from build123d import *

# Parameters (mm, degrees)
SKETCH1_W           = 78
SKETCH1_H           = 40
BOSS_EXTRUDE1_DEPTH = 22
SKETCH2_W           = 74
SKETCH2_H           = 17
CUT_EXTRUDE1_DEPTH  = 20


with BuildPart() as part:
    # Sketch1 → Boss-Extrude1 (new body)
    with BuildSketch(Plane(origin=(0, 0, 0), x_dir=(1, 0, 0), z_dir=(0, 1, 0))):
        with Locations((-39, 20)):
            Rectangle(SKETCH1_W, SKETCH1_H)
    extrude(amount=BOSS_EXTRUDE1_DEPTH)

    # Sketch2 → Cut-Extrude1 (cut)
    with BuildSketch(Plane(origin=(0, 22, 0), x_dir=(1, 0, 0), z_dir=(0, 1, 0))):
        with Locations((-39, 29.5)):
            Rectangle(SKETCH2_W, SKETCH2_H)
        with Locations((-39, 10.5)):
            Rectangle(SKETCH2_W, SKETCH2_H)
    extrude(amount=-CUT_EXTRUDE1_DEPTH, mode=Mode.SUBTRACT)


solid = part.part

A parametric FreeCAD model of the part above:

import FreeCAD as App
import Part
import Sketcher

V = App.Vector

doc = App.newDocument("Part")
params = doc.addObject("Spreadsheet::Sheet", "Params")
for row, (alias, value) in enumerate([
    ("sketch1_width", "78 mm"),
    ("sketch1_height", "40 mm"),
    ("pad1_length", "22 mm"),
    ("sketch2_width", "74 mm"),
    ("sketch2_height", "17 mm"),
    ("pocket1_length", "20 mm"),
], start=1):
    params.set(f"A{row}", alias)
    params.set(f"B{row}", "=" + value)
    params.setAlias(f"B{row}", alias)

body = doc.addObject("PartDesign::Body", "Body")

# Sketch on XZ plane
sketch1 = body.newObject("Sketcher::SketchObject", "Sketch")
sketch1.AttachmentSupport = (doc.getObject("XZ_Plane"), [""])
sketch1.MapMode = "FlatFace"
sketch1.addGeometry([
    Part.LineSegment(V(-78, -40, 0), V(-78, 0, 0)),
    Part.LineSegment(V(-78, 0, 0), V(0, 0, 0)),
    Part.LineSegment(V(0, 0, 0), V(0, -40, 0)),
    Part.LineSegment(V(0, -40, 0), V(-78, -40, 0)),
], False)
sketch1.addConstraint([
    Sketcher.Constraint("Coincident", 0, 2, 1, 1),
    Sketcher.Constraint("Coincident", 1, 2, 2, 1),
    Sketcher.Constraint("Coincident", 2, 2, 3, 1),
    Sketcher.Constraint("Coincident", 3, 2, 0, 1),
    Sketcher.Constraint("Vertical", 0),
    Sketcher.Constraint("Horizontal", 1),
    Sketcher.Constraint("Vertical", 2),
    Sketcher.Constraint("Horizontal", 3),
    Sketcher.Constraint("Coincident", 1, 2, -1, 1),
    Sketcher.Constraint("DistanceX", 1, 1, 1, 2, 78.0),
    Sketcher.Constraint("DistanceY", 0, 1, 0, 2, 40.0),
])
sketch1.setExpression("Constraints[9]", "Params.sketch1_width")
sketch1.setExpression("Constraints[10]", "Params.sketch1_height")
pad1 = body.newObject("PartDesign::Pad", "Pad")
pad1.Profile = sketch1
pad1.setExpression("Length", "Params.pad1_length")
pad1.Reversed = True

# Sketch on XZ plane
sketch2 = body.newObject("Sketcher::SketchObject", "Sketch001")
sketch2.AttachmentSupport = (doc.getObject("XZ_Plane"), [""])
sketch2.MapMode = "FlatFace"
sketch2.AttachmentOffset = App.Placement(V(0, 0, -22), App.Rotation())
sketch2.addGeometry([
    Part.LineSegment(V(-76, -38, 0), V(-76, -21, 0)),  # 0
    Part.LineSegment(V(-76, -21, 0), V(-2, -21, 0)),  # 1
    Part.LineSegment(V(-2, -21, 0), V(-2, -38, 0)),  # 2
    Part.LineSegment(V(-2, -38, 0), V(-76, -38, 0)),  # 3
    Part.LineSegment(V(-76, -19, 0), V(-76, -2, 0)),  # 4
    Part.LineSegment(V(-76, -2, 0), V(-2, -2, 0)),  # 5
    Part.LineSegment(V(-2, -2, 0), V(-2, -19, 0)),  # 6
    Part.LineSegment(V(-2, -19, 0), V(-76, -19, 0)),  # 7
], False)
sketch2.addConstraint([
    Sketcher.Constraint("Coincident", 0, 2, 1, 1),
    Sketcher.Constraint("Coincident", 1, 2, 2, 1),
    Sketcher.Constraint("Coincident", 2, 2, 3, 1),
    Sketcher.Constraint("Coincident", 3, 2, 0, 1),
    Sketcher.Constraint("Coincident", 4, 2, 5, 1),
    Sketcher.Constraint("Coincident", 5, 2, 6, 1),
    Sketcher.Constraint("Coincident", 6, 2, 7, 1),
    Sketcher.Constraint("Coincident", 7, 2, 4, 1),
    Sketcher.Constraint("Vertical", 0),
    Sketcher.Constraint("Horizontal", 1),
    Sketcher.Constraint("Vertical", 2),
    Sketcher.Constraint("Horizontal", 3),
    Sketcher.Constraint("Vertical", 4),
    Sketcher.Constraint("Horizontal", 5),
    Sketcher.Constraint("Vertical", 6),
    Sketcher.Constraint("Horizontal", 7),
    Sketcher.Constraint("Vertical", 3, 2, 4, 2),
    Sketcher.Constraint("Vertical", 2, 2, 5, 2),
    Sketcher.Constraint("Equal", 2, 4),
    Sketcher.Constraint("DistanceX", 1, 1, 1, 2, 74.0),
    Sketcher.Constraint("DistanceY", 0, 1, 0, 2, 17.0),
    Sketcher.Constraint("DistanceX", 0, 2, -1, 1, 76.0),
    Sketcher.Constraint("DistanceY", 0, 2, -1, 1, 21.0),
    Sketcher.Constraint("DistanceY", 4, 2, -1, 1, 2.0),
])
sketch2.setExpression("Constraints[19]", "Params.sketch2_width")
sketch2.setExpression("Constraints[20]", "Params.sketch2_height")
pocket1 = body.newObject("PartDesign::Pocket", "Pocket")
pocket1.Profile = sketch2
pocket1.setExpression("Length", "Params.pocket1_length")
pocket1.Reversed = True

doc.recompute()
